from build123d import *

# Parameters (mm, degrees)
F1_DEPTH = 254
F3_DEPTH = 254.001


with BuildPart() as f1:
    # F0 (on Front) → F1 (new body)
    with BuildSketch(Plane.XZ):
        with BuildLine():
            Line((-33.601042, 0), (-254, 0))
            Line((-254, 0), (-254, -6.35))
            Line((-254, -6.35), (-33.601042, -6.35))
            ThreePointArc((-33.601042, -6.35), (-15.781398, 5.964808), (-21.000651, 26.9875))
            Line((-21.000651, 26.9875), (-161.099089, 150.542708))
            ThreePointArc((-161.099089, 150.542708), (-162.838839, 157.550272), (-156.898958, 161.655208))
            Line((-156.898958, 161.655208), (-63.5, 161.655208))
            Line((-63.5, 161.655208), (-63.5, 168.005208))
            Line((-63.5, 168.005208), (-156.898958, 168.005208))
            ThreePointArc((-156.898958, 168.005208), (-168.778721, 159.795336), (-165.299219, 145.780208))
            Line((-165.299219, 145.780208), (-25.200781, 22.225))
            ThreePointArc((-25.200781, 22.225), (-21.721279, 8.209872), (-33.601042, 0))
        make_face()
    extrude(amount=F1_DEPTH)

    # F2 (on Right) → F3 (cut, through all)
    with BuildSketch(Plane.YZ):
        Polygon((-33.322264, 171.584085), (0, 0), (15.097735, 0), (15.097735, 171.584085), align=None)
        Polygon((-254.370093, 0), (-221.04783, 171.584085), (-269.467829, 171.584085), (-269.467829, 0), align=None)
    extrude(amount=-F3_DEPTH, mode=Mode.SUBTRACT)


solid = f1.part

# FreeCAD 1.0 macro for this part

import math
import FreeCAD as App
import Part
import Sketcher
from FreeCAD import Vector
Q = App.Units.Quantity

doc = App.newDocument("Part")
body = doc.addObject("PartDesign::Body", "Body")

# Sketch on XZ plane
sketch1 = doc.addObject("Sketcher::SketchObject", "Sketch")
body.addObject(sketch1)
sketch1.AttachmentSupport = (doc.XZ_Plane, [""])
sketch1.MapMode = "FlatFace"
sketch1.addGeometry(Part.LineSegment(Vector(-33.601042, 0, 0), Vector(-254, 0, 0)), False)
sketch1.addGeometry(Part.LineSegment(Vector(-254, 0, 0), Vector(-254, -6.35, 0)), False)
sketch1.addGeometry(Part.LineSegment(Vector(-254, -6.35, 0), Vector(-33.601042, -6.35, 0)), False)
sketch1.addGeometry(Part.ArcOfCircle(Part.Circle(Vector(-33.601041, 12.7, 0), Vector(0, 0, 1), 19.05), math.radians(-90.000002), math.radians(48.590379)), False)
sketch1.addGeometry(Part.LineSegment(Vector(-21.000651, 26.9875, 0), Vector(-161.099089, 150.542708, 0)), False)
sketch1.addGeometry(Part.ArcOfCircle(Part.Circle(Vector(-156.898958, 155.305208, 0), Vector(0, 0, 1), 6.35), math.radians(90.000004), math.radians(228.590367)), False)
sketch1.addGeometry(Part.LineSegment(Vector(-156.898958, 161.655208, 0), Vector(-63.5, 161.655208, 0)), False)
sketch1.addGeometry(Part.LineSegment(Vector(-63.5, 161.655208, 0), Vector(-63.5, 168.005208, 0)), False)
sketch1.addGeometry(Part.LineSegment(Vector(-63.5, 168.005208, 0), Vector(-156.898958, 168.005208, 0)), False)
sketch1.addGeometry(Part.ArcOfCircle(Part.Circle(Vector(-156.898959, 155.305208, 0), Vector(0, 0, 1), 12.7), math.radians(89.999996), math.radians(228.590379)), False)
sketch1.addGeometry(Part.LineSegment(Vector(-165.299219, 145.780208, 0), Vector(-25.200781, 22.225, 0)), False)
sketch1.addGeometry(Part.ArcOfCircle(Part.Circle(Vector(-33.601041, 12.7, 0), Vector(0, 0, 1), 12.7), math.radians(-90.000004), math.radians(48.590379)), False)
sketch1.addConstraint(Sketcher.Constraint("Coincident", 0, 2, 1, 1))
sketch1.addConstraint(Sketcher.Constraint("Coincident", 1, 2, 2, 1))
sketch1.addConstraint(Sketcher.Constraint("Tangent", 2, 2, 3, 1))
sketch1.addConstraint(Sketcher.Constraint("Tangent", 3, 2, 4, 1))
sketch1.addConstraint(Sketcher.Constraint("Tangent", 4, 2, 5, 2))
sketch1.addConstraint(Sketcher.Constraint("Tangent", 5, 1, 6, 1))
sketch1.addConstraint(Sketcher.Constraint("Coincident", 6, 2, 7, 1))
sketch1.addConstraint(Sketcher.Constraint("Coincident", 7, 2, 8, 1))
sketch1.addConstraint(Sketcher.Constraint("Tangent", 8, 2, 9, 1))
sketch1.addConstraint(Sketcher.Constraint("Tangent", 9, 2, 10, 1))
sketch1.addConstraint(Sketcher.Constraint("Tangent", 10, 2, 11, 2))
sketch1.addConstraint(Sketcher.Constraint("Tangent", 11, 1, 0, 1))
sketch1.addConstraint(Sketcher.Constraint("Horizontal", 0))
sketch1.addConstraint(Sketcher.Constraint("Vertical", 1))
sketch1.addConstraint(Sketcher.Constraint("Horizontal", 2))
sketch1.addConstraint(Sketcher.Constraint("Horizontal", 6))
sketch1.addConstraint(Sketcher.Constraint("Vertical", 7))
sketch1.addConstraint(Sketcher.Constraint("Horizontal", 8))
sketch1.addConstraint(Sketcher.Constraint("Coincident", 9, 3, 5, 3))
sketch1.addConstraint(Sketcher.Constraint("Coincident", 11, 3, 3, 3))
sketch1.addConstraint(Sketcher.Constraint("Equal", 9, 11))
sketch1.addConstraint(Sketcher.Constraint("PointOnObject", 0, 2, -1))
sketch1.addConstraint(Sketcher.Constraint("Parallel", 4, 10))
sketch1.addConstraint(Sketcher.Constraint("Radius", 9, Q("0.5 in")))
sketch1.addConstraint(Sketcher.Constraint("Radius", 3, Q("0.75 in")))
sketch1.addConstraint(Sketcher.Constraint("DistanceX", 0, 2, -1, 1, Q("10 in")))
sketch1.addConstraint(Sketcher.Constraint("DistanceX", 6, 2, -1, 1, Q("2.5 in")))
sketch1.addConstraint(Sketcher.Constraint("DistanceY", -1, 1, 3, 2, Q("1.0625 in")))
sketch1.addConstraint(Sketcher.Constraint("DistanceX", 0, 2, 0, 1, 220.398958))
sketch1.addConstraint(Sketcher.Constraint("DistanceX", 6, 1, 6, 2, 93.398958))
pad1 = doc.addObject("PartDesign::Pad", "Pad")
body.addObject(pad1)
pad1.Profile = sketch1
pad1.Length = Q("10 in")

# Sketch on YZ plane
sketch2 = doc.addObject("Sketcher::SketchObject", "Sketch001")
body.addObject(sketch2)
sketch2.AttachmentSupport = (doc.YZ_Plane, [""])
sketch2.MapMode = "FlatFace"
sketch2.addGeometry(Part.LineSegment(Vector(-33.322264, 171.584085, 0), Vector(0, 0, 0)), False)
sketch2.addGeometry(Part.LineSegment(Vector(0, 0, 0), Vector(15.097735, 0, 0)), False)
sketch2.addGeometry(Part.LineSegment(Vector(15.097735, 0, 0), Vector(15.097735, 171.584085, 0)), False)
sketch2.addGeometry(Part.LineSegment(Vector(15.097735, 171.584085, 0), Vector(-33.322264, 171.584085, 0)), False)
sketch2.addGeometry(Part.LineSegment(Vector(-254.370093, 0, 0), Vector(-221.04783, 171.584085, 0)), False)
sketch2.addGeometry(Part.LineSegment(Vector(-221.04783, 171.584085, 0), Vector(-269.467829, 171.584085, 0)), False)
sketch2.addGeometry(Part.LineSegment(Vector(-269.467829, 171.584085, 0), Vector(-269.467829, 0, 0)), False)
sketch2.addGeometry(Part.LineSegment(Vector(-269.467829, 0, 0), Vector(-254.370093, 0, 0)), False)
sketch2.addConstraint(Sketcher.Constraint("Coincident", 0, 2, 1, 1))
sketch2.addConstraint(Sketcher.Constraint("Coincident", 1, 2, 2, 1))
sketch2.addConstraint(Sketcher.Constraint("Coincident", 2, 2, 3, 1))
sketch2.addConstraint(Sketcher.Constraint("Coincident", 3, 2, 0, 1))
sketch2.addConstraint(Sketcher.Constraint("Coincident", 4, 2, 5, 1))
sketch2.addConstraint(Sketcher.Constraint("Coincident", 5, 2, 6, 1))
sketch2.addConstraint(Sketcher.Constraint("Coincident", 6, 2, 7, 1))
sketch2.addConstraint(Sketcher.Constraint("Coincident", 7, 2, 4, 1))
sketch2.addConstraint(Sketcher.Constraint("Horizontal", 1))
sketch2.addConstraint(Sketcher.Constraint("Vertical", 2))
sketch2.addConstraint(Sketcher.Constraint("Horizontal", 3))
sketch2.addConstraint(Sketcher.Constraint("Horizontal", 5))
sketch2.addConstraint(Sketcher.Constraint("Vertical", 6))
sketch2.addConstraint(Sketcher.Constraint("Horizontal", 7))
sketch2.addConstraint(Sketcher.Constraint("Coincident", 0, 2, -1, 1))
sketch2.addConstraint(Sketcher.Constraint("PointOnObject", 6, 2, -1))
sketch2.addConstraint(Sketcher.Constraint("Horizontal", 3, 2, 4, 2))
sketch2.addConstraint(Sketcher.Constraint("Equal", 3, 5))
sketch2.addConstraint(Sketcher.Constraint("Equal", 1, 7))
sketch2.addConstraint(Sketcher.Constraint("DistanceX", 3, 2, 3, 1, 48.419999))
sketch2.addConstraint(Sketcher.Constraint("DistanceX", 3, 2, -1, 1, Q("1.3119002 in")))
sketch2.addConstraint(Sketcher.Constraint("DistanceY", 2, 1, 2, 2, 171.584085))
sketch2.addConstraint(Sketcher.Constraint("DistanceX", 4, 2, -1, 1, 221.04783))
pocket1 = doc.addObject("PartDesign::Pocket", "Pocket")
body.addObject(pocket1)
pocket1.Profile = sketch2
pocket1.Type = "ThroughAll"

doc.recompute()
